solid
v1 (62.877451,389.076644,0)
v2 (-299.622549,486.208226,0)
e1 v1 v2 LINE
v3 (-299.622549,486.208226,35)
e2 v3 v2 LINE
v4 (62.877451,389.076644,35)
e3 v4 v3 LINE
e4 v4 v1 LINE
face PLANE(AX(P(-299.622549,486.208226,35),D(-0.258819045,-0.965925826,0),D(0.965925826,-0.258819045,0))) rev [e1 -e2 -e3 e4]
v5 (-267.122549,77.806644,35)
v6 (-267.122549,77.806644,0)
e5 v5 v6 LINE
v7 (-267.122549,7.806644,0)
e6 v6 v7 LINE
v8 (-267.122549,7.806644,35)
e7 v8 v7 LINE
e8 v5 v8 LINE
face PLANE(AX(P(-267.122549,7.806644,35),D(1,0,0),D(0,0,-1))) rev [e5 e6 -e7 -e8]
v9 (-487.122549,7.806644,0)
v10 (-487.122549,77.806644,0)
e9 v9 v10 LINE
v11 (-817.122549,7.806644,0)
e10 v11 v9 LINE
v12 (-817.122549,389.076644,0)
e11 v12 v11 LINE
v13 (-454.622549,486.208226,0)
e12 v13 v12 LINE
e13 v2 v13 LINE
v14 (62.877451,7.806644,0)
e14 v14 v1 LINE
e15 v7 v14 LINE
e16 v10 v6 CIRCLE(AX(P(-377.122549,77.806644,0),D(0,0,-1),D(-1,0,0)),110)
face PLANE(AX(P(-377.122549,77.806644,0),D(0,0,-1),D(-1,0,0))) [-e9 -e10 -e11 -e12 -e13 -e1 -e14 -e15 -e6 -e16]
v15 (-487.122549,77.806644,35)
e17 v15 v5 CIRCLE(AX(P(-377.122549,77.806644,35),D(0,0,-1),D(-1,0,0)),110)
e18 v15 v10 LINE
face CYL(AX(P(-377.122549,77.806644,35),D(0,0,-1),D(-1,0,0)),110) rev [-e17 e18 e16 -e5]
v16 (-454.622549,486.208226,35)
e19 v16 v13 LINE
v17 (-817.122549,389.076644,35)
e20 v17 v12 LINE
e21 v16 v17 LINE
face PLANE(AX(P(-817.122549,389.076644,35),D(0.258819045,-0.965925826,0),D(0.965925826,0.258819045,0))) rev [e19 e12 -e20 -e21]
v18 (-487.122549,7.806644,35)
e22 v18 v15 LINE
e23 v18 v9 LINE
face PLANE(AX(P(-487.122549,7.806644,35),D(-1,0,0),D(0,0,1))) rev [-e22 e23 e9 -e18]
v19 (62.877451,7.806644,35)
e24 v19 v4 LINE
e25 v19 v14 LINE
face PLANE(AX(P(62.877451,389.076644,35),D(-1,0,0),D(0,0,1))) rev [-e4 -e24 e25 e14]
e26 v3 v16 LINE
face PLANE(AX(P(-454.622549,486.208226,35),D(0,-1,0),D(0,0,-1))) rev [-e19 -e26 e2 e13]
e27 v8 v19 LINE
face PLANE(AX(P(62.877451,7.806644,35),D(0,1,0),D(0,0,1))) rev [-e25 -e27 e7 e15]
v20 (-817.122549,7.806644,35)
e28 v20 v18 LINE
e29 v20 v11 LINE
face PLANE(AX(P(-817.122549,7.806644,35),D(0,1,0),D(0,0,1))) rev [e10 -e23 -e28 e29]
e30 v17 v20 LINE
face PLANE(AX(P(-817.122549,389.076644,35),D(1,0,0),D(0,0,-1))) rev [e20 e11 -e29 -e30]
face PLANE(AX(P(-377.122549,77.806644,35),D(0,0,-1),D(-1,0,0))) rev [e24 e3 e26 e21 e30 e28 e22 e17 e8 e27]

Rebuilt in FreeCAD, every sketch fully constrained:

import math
import FreeCAD as App
import Part
import Sketcher

V = App.Vector
Q = App.Units.Quantity

doc = App.newDocument("Part")
body = doc.addObject("PartDesign::Body", "Body")

# Sketch on XY plane
sketch1 = body.newObject("Sketcher::SketchObject", "Sketch")
sketch1.AttachmentSupport = (doc.getObject("XY_Plane"), [""])
sketch1.MapMode = "FlatFace"
sketch1.addGeometry([
    Part.LineSegment(V(63, 8, 0), V(63, 389, 0)),  # 0
    Part.LineSegment(V(63, 389, 0), V(-300, 486, 0)),  # 1
    Part.LineSegment(V(-300, 486, 0), V(-455, 486, 0)),  # 2
    Part.LineSegment(V(-455, 486, 0), V(-817, 389, 0)),  # 3
    Part.LineSegment(V(-817, 389, 0), V(-817, 8, 0)),  # 4
    Part.LineSegment(V(-817, 8, 0), V(-487, 8, 0)),  # 5
    Part.LineSegment(V(-487, 8, 0), V(-487, 78, 0)),  # 6
    Part.ArcOfCircle(Part.Circle(V(-377, 78, 0), V(0, 0, 1), 110), math.radians(0), math.radians(180)),  # 7
    Part.LineSegment(V(-267, 78, 0), V(-267, 8, 0)),  # 8
    Part.LineSegment(V(-267, 8, 0), V(63, 8, 0)),  # 9
], False)
sketch1.addConstraint([
    Sketcher.Constraint("Coincident", 0, 2, 1, 1),
    Sketcher.Constraint("Coincident", 1, 2, 2, 1),
    Sketcher.Constraint("Coincident", 2, 2, 3, 1),
    Sketcher.Constraint("Coincident", 3, 2, 4, 1),
    Sketcher.Constraint("Coincident", 4, 2, 5, 1),
    Sketcher.Constraint("Coincident", 5, 2, 6, 1),
    Sketcher.Constraint("Tangent", 6, 2, 7, 2),
    Sketcher.Constraint("Tangent", 7, 1, 8, 1),
    Sketcher.Constraint("Coincident", 8, 2, 9, 1),
    Sketcher.Constraint("Coincident", 9, 2, 0, 1),
    Sketcher.Constraint("Vertical", 0),
    Sketcher.Constraint("Horizontal", 2),
    Sketcher.Constraint("Vertical", 4),
    Sketcher.Constraint("Horizontal", 5),
    Sketcher.Constraint("Vertical", 6),
    Sketcher.Constraint("Vertical", 8),
    Sketcher.Constraint("Horizontal", 9),
    Sketcher.Constraint("Horizontal", 0, 2, 3, 2),
    Sketcher.Constraint("Horizontal", 5, 2, 8, 2),
    Sketcher.Constraint("Equal", 5, 9),
    Sketcher.Constraint("Equal", 1, 3),
    Sketcher.Constraint("Radius", 7, Q("110 mm")),
    Sketcher.Constraint("DistanceX", 2, 2, 2, 1, Q("155 mm")),
    Sketcher.Constraint("DistanceX", 5, 1, 5, 2, Q("330 mm")),
    Sketcher.Constraint("DistanceY", 6, 1, 6, 2, Q("70 mm")),
    Sketcher.Constraint("Angle", 1, Q("165 deg")),
    Sketcher.Constraint("DistanceY", 0, 1, 0, 2, Q("381.27 mm")),
    Sketcher.Constraint("DistanceX", 7, 3, -1, 1, Q("377.122549 mm")),
    Sketcher.Constraint("DistanceY", -1, 1, 7, 3, Q("77.806644 mm")),
])
pad1 = body.newObject("PartDesign::Pad", "Pad")
pad1.Profile = sketch1
pad1.Length = 35

doc.recompute()
